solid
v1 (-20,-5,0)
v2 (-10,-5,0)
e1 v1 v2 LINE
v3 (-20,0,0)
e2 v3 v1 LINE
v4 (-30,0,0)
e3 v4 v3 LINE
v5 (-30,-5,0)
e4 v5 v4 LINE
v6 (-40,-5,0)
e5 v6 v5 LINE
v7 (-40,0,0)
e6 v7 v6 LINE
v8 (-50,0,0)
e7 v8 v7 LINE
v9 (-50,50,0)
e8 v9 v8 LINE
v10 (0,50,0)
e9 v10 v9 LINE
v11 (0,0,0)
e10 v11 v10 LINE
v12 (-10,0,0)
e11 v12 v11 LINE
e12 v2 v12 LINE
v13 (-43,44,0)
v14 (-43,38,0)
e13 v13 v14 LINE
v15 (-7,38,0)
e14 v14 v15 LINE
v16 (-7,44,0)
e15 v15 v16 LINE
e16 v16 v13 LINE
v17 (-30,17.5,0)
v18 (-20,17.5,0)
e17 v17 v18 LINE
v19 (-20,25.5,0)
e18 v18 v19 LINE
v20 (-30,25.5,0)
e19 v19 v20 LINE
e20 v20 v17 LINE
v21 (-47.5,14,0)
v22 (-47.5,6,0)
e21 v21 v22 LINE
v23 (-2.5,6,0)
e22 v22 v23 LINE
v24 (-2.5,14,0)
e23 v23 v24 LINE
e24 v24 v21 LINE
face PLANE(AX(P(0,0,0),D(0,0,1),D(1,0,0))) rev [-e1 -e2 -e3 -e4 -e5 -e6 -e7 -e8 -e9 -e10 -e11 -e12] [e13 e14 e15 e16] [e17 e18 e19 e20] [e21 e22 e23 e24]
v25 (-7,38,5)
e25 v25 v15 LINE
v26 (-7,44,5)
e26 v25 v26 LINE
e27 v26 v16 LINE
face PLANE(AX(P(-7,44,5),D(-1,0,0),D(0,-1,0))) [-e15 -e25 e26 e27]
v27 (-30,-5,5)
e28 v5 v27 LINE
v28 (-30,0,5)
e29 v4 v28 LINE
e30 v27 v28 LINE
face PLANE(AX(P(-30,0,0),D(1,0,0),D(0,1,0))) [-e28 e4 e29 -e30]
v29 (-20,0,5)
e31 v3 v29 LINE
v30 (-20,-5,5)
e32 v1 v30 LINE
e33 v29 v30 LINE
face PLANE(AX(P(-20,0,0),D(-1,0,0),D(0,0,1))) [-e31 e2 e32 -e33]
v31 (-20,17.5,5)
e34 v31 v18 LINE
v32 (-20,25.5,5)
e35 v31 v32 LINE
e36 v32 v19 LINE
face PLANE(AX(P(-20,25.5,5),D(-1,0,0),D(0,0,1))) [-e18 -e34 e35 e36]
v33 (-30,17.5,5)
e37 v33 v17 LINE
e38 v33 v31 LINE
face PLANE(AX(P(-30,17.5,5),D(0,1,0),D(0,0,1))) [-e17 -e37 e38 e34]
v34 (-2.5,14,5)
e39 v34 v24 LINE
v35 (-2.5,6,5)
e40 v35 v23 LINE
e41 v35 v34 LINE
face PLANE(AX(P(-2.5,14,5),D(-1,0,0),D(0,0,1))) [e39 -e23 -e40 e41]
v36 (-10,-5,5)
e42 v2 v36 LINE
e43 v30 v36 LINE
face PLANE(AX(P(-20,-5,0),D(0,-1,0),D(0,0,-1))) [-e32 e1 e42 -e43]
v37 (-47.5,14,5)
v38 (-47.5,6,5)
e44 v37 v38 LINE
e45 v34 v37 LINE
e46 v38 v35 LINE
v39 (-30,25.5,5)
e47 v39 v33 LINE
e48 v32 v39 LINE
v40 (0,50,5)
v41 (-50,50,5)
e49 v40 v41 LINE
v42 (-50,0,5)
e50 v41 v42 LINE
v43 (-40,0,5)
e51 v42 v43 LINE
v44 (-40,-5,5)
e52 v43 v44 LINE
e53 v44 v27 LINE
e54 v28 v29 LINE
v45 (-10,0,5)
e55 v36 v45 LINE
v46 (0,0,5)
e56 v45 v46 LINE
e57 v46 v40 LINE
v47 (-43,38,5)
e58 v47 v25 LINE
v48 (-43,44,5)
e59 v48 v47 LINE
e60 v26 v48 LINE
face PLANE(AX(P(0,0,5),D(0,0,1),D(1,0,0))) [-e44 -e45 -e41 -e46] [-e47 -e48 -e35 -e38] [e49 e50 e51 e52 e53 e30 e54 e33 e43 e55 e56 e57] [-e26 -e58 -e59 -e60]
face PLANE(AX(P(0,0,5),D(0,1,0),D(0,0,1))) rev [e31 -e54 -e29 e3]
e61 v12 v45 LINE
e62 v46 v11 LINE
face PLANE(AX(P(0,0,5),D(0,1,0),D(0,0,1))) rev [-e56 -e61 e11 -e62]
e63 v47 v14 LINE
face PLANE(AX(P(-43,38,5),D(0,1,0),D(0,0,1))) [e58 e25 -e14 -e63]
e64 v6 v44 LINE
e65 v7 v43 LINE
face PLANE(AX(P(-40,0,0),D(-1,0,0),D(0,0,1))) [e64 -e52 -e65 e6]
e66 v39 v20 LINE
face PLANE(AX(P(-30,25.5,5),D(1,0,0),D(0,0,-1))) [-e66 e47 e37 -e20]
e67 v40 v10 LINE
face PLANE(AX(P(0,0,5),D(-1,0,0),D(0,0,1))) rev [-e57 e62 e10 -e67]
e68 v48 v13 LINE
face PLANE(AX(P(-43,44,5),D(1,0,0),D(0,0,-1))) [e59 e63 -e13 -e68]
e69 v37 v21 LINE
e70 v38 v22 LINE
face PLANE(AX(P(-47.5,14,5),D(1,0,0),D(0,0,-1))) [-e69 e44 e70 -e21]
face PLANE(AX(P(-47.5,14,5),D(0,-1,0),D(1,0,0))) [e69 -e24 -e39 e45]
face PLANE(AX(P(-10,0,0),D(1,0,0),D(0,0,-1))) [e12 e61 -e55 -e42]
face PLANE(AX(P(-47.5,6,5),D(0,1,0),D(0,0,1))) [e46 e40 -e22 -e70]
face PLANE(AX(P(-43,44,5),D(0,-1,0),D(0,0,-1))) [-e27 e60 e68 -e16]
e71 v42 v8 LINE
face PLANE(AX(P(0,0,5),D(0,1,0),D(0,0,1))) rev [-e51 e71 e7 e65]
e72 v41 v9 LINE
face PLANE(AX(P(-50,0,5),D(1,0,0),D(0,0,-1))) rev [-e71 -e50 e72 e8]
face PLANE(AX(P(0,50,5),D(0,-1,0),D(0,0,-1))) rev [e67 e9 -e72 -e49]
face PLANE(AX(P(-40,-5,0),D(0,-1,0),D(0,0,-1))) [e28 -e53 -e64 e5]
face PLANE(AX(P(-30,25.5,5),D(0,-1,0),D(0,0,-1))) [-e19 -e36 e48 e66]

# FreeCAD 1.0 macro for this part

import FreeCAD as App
import Part
import Sketcher

V = App.Vector

doc = App.newDocument("Part")
params = doc.addObject("Spreadsheet::Sheet", "Params")
for row, (alias, value) in enumerate([
    ("sketch1_width", "50 mm"),
    ("sketch1_width2", "45 mm"),
    ("sketch1_width3", "10 mm"),
    ("sketch1_width4", "36 mm"),
    ("sketch1_height", "8 mm"),
    ("pad1_length", "5 mm"),
    ("sketch2_width", "10 mm"),
    ("sketch2_height", "5 mm"),
    ("pad2_length", "5 mm"),
], start=1):
    params.set(f"A{row}", alias)
    params.set(f"B{row}", "=" + value)
    params.setAlias(f"B{row}", alias)

body = doc.addObject("PartDesign::Body", "Body")

# Sketch on XY plane
sketch1 = body.newObject("Sketcher::SketchObject", "Sketch")
sketch1.AttachmentSupport = (doc.getObject("XY_Plane"), [""])
sketch1.MapMode = "FlatFace"
sketch1.addGeometry(Part.LineSegment(V(-50, 50, 0), V(-50, 0, 0)), False)
sketch1.addGeometry(Part.LineSegment(V(-50, 0, 0), V(0, 0, 0)), False)
sketch1.addGeometry(Part.LineSegment(V(0, 0, 0), V(0, 50, 0)), False)
sketch1.addGeometry(Part.LineSegment(V(0, 50, 0), V(-50, 50, 0)), False)
sketch1.addGeometry(Part.LineSegment(V(-2, 6, 0), V(-48, 6, 0)), False)
sketch1.addGeometry(Part.LineSegment(V(-48, 6, 0), V(-48, 14, 0)), False)
sketch1.addGeometry(Part.LineSegment(V(-48, 14, 0), V(-2, 14, 0)), False)
sketch1.addGeometry(Part.LineSegment(V(-2, 14, 0), V(-2, 6, 0)), False)
sketch1.addGeometry(Part.LineSegment(V(-20, 18, 0), V(-30, 18, 0)), False)
sketch1.addGeometry(Part.LineSegment(V(-30, 18, 0), V(-30, 26, 0)), False)
sketch1.addGeometry(Part.LineSegment(V(-30, 26, 0), V(-20, 26, 0)), False)
sketch1.addGeometry(Part.LineSegment(V(-20, 26, 0), V(-20, 18, 0)), False)
sketch1.addGeometry(Part.LineSegment(V(-7, 38, 0), V(-43, 38, 0)), False)
sketch1.addGeometry(Part.LineSegment(V(-43, 38, 0), V(-43, 44, 0)), False)
sketch1.addGeometry(Part.LineSegment(V(-43, 44, 0), V(-7, 44, 0)), False)
sketch1.addGeometry(Part.LineSegment(V(-7, 44, 0), V(-7, 38, 0)), False)
sketch1.addConstraint(Sketcher.Constraint("Coincident", 0, 2, 1, 1))
sketch1.addConstraint(Sketcher.Constraint("Coincident", 1, 2, 2, 1))
sketch1.addConstraint(Sketcher.Constraint("Coincident", 2, 2, 3, 1))
sketch1.addConstraint(Sketcher.Constraint("Coincident", 3, 2, 0, 1))
sketch1.addConstraint(Sketcher.Constraint("Coincident", 4, 2, 5, 1))
sketch1.addConstraint(Sketcher.Constraint("Coincident", 5, 2, 6, 1))
sketch1.addConstraint(Sketcher.Constraint("Coincident", 6, 2, 7, 1))
sketch1.addConstraint(Sketcher.Constraint("Coincident", 7, 2, 4, 1))
sketch1.addConstraint(Sketcher.Constraint("Coincident", 8, 2, 9, 1))
sketch1.addConstraint(Sketcher.Constraint("Coincident", 9, 2, 10, 1))
sketch1.addConstraint(Sketcher.Constraint("Coincident", 10, 2, 11, 1))
sketch1.addConstraint(Sketcher.Constraint("Coincident", 11, 2, 8, 1))
sketch1.addConstraint(Sketcher.Constraint("Coincident", 12, 2, 13, 1))
sketch1.addConstraint(Sketcher.Constraint("Coincident", 13, 2, 14, 1))
sketch1.addConstraint(Sketcher.Constraint("Coincident", 14, 2, 15, 1))
sketch1.addConstraint(Sketcher.Constraint("Coincident", 15, 2, 12, 1))
sketch1.addConstraint(Sketcher.Constraint("Vertical", 0))
sketch1.addConstraint(Sketcher.Constraint("Horizontal", 1))
sketch1.addConstraint(Sketcher.Constraint("Vertical", 2))
sketch1.addConstraint(Sketcher.Constraint("Horizontal", 3))
sketch1.addConstraint(Sketcher.Constraint("Horizontal", 4))
sketch1.addConstraint(Sketcher.Constraint("Vertical", 5))
sketch1.addConstraint(Sketcher.Constraint("Horizontal", 6))
sketch1.addConstraint(Sketcher.Constraint("Vertical", 7))
sketch1.addConstraint(Sketcher.Constraint("Horizontal", 8))
sketch1.addConstraint(Sketcher.Constraint("Vertical", 9))
sketch1.addConstraint(Sketcher.Constraint("Horizontal", 10))
sketch1.addConstraint(Sketcher.Constraint("Vertical", 11))
sketch1.addConstraint(Sketcher.Constraint("Horizontal", 12))
sketch1.addConstraint(Sketcher.Constraint("Vertical", 13))
sketch1.addConstraint(Sketcher.Constraint("Horizontal", 14))
sketch1.addConstraint(Sketcher.Constraint("Vertical", 15))
sketch1.addConstraint(Sketcher.Constraint("Coincident", 1, 2, -1, 1))
sketch1.addConstraint(Sketcher.Constraint("Equal", 3, 0))
sketch1.addConstraint(Sketcher.Constraint("Equal", 7, 9))
sketch1.addConstraint(Sketcher.Constraint("DistanceX", 1, 1, 1, 2, 50.0))
sketch1.addConstraint(Sketcher.Constraint("DistanceX", 4, 2, 4, 1, 45.0))
sketch1.addConstraint(Sketcher.Constraint("DistanceX", 8, 2, 8, 1, 10.0))
sketch1.addConstraint(Sketcher.Constraint("DistanceX", 12, 2, 12, 1, 36.0))
sketch1.addConstraint(Sketcher.Constraint("DistanceY", 5, 1, 5, 2, 8.0))
sketch1.addConstraint(Sketcher.Constraint("DistanceY", 13, 1, 13, 2, 6.0))
sketch1.addConstraint(Sketcher.Constraint("DistanceY", -1, 1, 4, 2, 6.0))
sketch1.addConstraint(Sketcher.Constraint("DistanceX", 8, 2, -1, 1, 30.0))
sketch1.addConstraint(Sketcher.Constraint("DistanceX", 12, 2, -1, 1, 43.0))
sketch1.addConstraint(Sketcher.Constraint("DistanceY", -1, 1, 12, 2, 38.0))
sketch1.addConstraint(Sketcher.Constraint("DistanceX", 4, 2, -1, 1, 47.5))
sketch1.addConstraint(Sketcher.Constraint("DistanceY", -1, 1, 8, 2, 17.5))
sketch1.setExpression("Constraints[35]", "Params.sketch1_width")
sketch1.setExpression("Constraints[36]", "Params.sketch1_width2")
sketch1.setExpression("Constraints[37]", "Params.sketch1_width3")
sketch1.setExpression("Constraints[38]", "Params.sketch1_width4")
sketch1.setExpression("Constraints[39]", "Params.sketch1_height")
pad1 = body.newObject("PartDesign::Pad", "Pad")
pad1.Profile = sketch1
pad1.setExpression("Length", "Params.pad1_length")

# Sketch on XY plane
sketch2 = body.newObject("Sketcher::SketchObject", "Sketch001")
sketch2.AttachmentSupport = (doc.getObject("XY_Plane"), [""])
sketch2.MapMode = "FlatFace"
sketch2.AttachmentOffset = App.Placement(V(0, 0, 5), App.Rotation())
sketch2.addGeometry(Part.LineSegment(V(-40, 0, 0), V(-40, -5, 0)), False)
sketch2.addGeometry(Part.LineSegment(V(-40, -5, 0), V(-30, -5, 0)), False)
sketch2.addGeometry(Part.LineSegment(V(-30, -5, 0), V(-30, 0, 0)), False)
sketch2.addGeometry(Part.LineSegment(V(-30, 0, 0), V(-40, 0, 0)), False)
sketch2.addGeometry(Part.LineSegment(V(-20, 0, 0), V(-20, -5, 0)), False)
sketch2.addGeometry(Part.LineSegment(V(-20, -5, 0), V(-10, -5, 0)), False)
sketch2.addGeometry(Part.LineSegment(V(-10, -5, 0), V(-10, 0, 0)), False)
sketch2.addGeometry(Part.LineSegment(V(-10, 0, 0), V(-20, 0, 0)), False)
sketch2.addConstraint(Sketcher.Constraint("Coincident", 0, 2, 1, 1))
sketch2.addConstraint(Sketcher.Constraint("Coincident", 1, 2, 2, 1))
sketch2.addConstraint(Sketcher.Constraint("Coincident", 2, 2, 3, 1))
sketch2.addConstraint(Sketcher.Constraint("Coincident", 3, 2, 0, 1))
sketch2.addConstraint(Sketcher.Constraint("Coincident", 4, 2, 5, 1))
sketch2.addConstraint(Sketcher.Constraint("Coincident", 5, 2, 6, 1))
sketch2.addConstraint(Sketcher.Constraint("Coincident", 6, 2, 7, 1))
sketch2.addConstraint(Sketcher.Constraint("Coincident", 7, 2, 4, 1))
sketch2.addConstraint(Sketcher.Constraint("Vertical", 0))
sketch2.addConstraint(Sketcher.Constraint("Horizontal", 1))
sketch2.addConstraint(Sketcher.Constraint("Vertical", 2))
sketch2.addConstraint(Sketcher.Constraint("Horizontal", 3))
sketch2.addConstraint(Sketcher.Constraint("Vertical", 4))
sketch2.addConstraint(Sketcher.Constraint("Horizontal", 5))
sketch2.addConstraint(Sketcher.Constraint("Vertical", 6))
sketch2.addConstraint(Sketcher.Constraint("Horizontal", 7))
sketch2.addConstraint(Sketcher.Constraint("PointOnObject", 2, 2, -1))
sketch2.addConstraint(Sketcher.Constraint("PointOnObject", 6, 2, -1))
sketch2.addConstraint(Sketcher.Constraint("Horizontal", 1, 2, 4, 2))
sketch2.addConstraint(Sketcher.Constraint("Equal", 3, 5))
sketch2.addConstraint(Sketcher.Constraint("DistanceX", 1, 1, 1, 2, 10.0))
sketch2.addConstraint(Sketcher.Constraint("DistanceY", 0, 2, 0, 1, 5.0))
sketch2.addConstraint(Sketcher.Constraint("DistanceX", 0, 2, -1, 1, 40.0))
sketch2.addConstraint(Sketcher.Constraint("DistanceX", 4, 2, -1, 1, 20.0))
sketch2.setExpression("Constraints[20]", "Params.sketch2_width")
sketch2.setExpression("Constraints[21]", "Params.sketch2_height")
pad2 = body.newObject("PartDesign::Pad", "Pad001")
pad2.Profile = sketch2
pad2.setExpression("Length", "Params.pad2_length")
pad2.Reversed = True

doc.recompute()
